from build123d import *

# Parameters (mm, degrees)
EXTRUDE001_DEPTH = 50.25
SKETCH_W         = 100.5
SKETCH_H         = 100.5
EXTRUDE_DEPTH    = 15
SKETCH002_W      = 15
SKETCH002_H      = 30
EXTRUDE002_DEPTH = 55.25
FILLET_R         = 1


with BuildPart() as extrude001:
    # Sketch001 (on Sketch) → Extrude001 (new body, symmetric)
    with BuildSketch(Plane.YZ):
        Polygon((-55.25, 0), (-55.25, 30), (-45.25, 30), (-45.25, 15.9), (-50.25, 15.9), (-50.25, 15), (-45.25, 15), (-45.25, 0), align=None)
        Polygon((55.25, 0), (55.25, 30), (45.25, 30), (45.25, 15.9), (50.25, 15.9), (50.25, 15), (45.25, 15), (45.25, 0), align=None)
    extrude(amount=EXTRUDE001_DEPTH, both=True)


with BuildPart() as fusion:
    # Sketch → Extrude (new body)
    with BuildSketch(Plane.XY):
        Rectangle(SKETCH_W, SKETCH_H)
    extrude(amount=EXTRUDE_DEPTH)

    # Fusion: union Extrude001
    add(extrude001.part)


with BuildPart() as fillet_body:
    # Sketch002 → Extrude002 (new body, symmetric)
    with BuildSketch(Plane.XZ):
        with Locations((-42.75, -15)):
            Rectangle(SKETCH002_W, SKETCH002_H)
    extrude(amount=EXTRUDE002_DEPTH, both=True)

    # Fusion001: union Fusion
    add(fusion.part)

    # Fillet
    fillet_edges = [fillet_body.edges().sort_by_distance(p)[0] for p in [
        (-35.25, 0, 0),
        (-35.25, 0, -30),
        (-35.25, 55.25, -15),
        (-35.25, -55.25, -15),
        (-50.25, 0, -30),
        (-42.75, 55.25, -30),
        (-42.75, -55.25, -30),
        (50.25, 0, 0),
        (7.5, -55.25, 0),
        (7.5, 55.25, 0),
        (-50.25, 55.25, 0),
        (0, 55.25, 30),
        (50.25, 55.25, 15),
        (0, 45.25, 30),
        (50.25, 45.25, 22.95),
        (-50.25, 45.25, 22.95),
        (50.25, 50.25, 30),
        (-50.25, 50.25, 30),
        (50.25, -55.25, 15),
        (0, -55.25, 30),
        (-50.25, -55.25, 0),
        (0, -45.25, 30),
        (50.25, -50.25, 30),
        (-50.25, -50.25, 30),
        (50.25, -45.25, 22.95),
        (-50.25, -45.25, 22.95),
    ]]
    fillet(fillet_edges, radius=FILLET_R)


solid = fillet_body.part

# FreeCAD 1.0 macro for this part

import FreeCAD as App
import Part
import Sketcher
from FreeCAD import Vector


def edges_at(feature, points):
    """Names of the edges that pass closest to the given points."""
    edges = feature.Shape.Edges
    near = lambda p: min(range(len(edges)), key=lambda i: edges[i].distToShape(Part.Vertex(*p))[0])
    return sorted({f"Edge{near(p) + 1}" for p in points})


def add_polygon(sketch, points):
    """Adds a closed chain of lines whose ends are joined by coincident constraints."""
    first, n = sketch.GeometryCount, len(points)
    for a, b in zip(points, points[1:] + points[:1]):
        sketch.addGeometry(Part.LineSegment(App.Vector(*a, 0), App.Vector(*b, 0)), False)
    for i in range(n):
        sketch.addConstraint(Sketcher.Constraint("Coincident", first + i, 2, first + (i + 1) % n, 1))

doc = App.newDocument("Part")
body = doc.addObject("PartDesign::Body", "Body")
body.AllowCompound = True

sketch1 = body.newObject("Sketcher::SketchObject", "Sketch")
sketch1.AttachmentSupport = (doc.getObject("YZ_Plane"), [""])
sketch1.MapMode = "FlatFace"
add_polygon(sketch1, [(-55.25, 30), (-55.25, 0), (-45.25, 0), (-45.25, 15), (-50.25, 15), (-50.25, 15.9), (-45.25, 15.9), (-45.25, 30)])
add_polygon(sketch1, [(55.25, 0), (55.25, 30), (45.25, 30), (45.25, 15.9), (50.25, 15.9), (50.25, 15), (45.25, 15), (45.25, 0)])
sketch1.addConstraint(Sketcher.Constraint("Vertical", 0))
sketch1.addConstraint(Sketcher.Constraint("Horizontal", 1))
sketch1.addConstraint(Sketcher.Constraint("Vertical", 2))
sketch1.addConstraint(Sketcher.Constraint("Horizontal", 3))
sketch1.addConstraint(Sketcher.Constraint("Vertical", 4))
sketch1.addConstraint(Sketcher.Constraint("Horizontal", 5))
sketch1.addConstraint(Sketcher.Constraint("Vertical", 6))
sketch1.addConstraint(Sketcher.Constraint("Horizontal", 7))
sketch1.addConstraint(Sketcher.Constraint("Vertical", 8))
sketch1.addConstraint(Sketcher.Constraint("Horizontal", 9))
sketch1.addConstraint(Sketcher.Constraint("Vertical", 10))
sketch1.addConstraint(Sketcher.Constraint("Horizontal", 11))
sketch1.addConstraint(Sketcher.Constraint("Vertical", 12))
sketch1.addConstraint(Sketcher.Constraint("Horizontal", 13))
sketch1.addConstraint(Sketcher.Constraint("Vertical", 14))
sketch1.addConstraint(Sketcher.Constraint("Horizontal", 15))
sketch1.addConstraint(Sketcher.Constraint("Symmetric", 1, 2, 14, 2, -1, 1))
sketch1.addConstraint(Sketcher.Constraint("Symmetric", 7, 2, 8, 2, -2))
sketch1.addConstraint(Sketcher.Constraint("Symmetric", 5, 2, 10, 2, -2))
sketch1.addConstraint(Sketcher.Constraint("Symmetric", 3, 2, 12, 2, -2))
sketch1.addConstraint(Sketcher.Constraint("PointOnObject", 0, 2, -1))
sketch1.addConstraint(Sketcher.Constraint("Vertical", 2, 2, 5, 2))
sketch1.addConstraint(Sketcher.Constraint("DistanceX", 1, 1, 1, 2, 10.0))
sketch1.addConstraint(Sketcher.Constraint("DistanceX", 3, 2, 3, 1, 5.0))
sketch1.addConstraint(Sketcher.Constraint("DistanceY", 0, 2, 0, 1, 30.0))
sketch1.addConstraint(Sketcher.Constraint("DistanceY", 2, 1, 2, 2, 15.0))
sketch1.addConstraint(Sketcher.Constraint("DistanceY", 4, 1, 4, 2, 0.9))
sketch1.addConstraint(Sketcher.Constraint("DistanceX", 6, 2, 8, 2, 100.5))
pad1 = body.newObject("PartDesign::Pad", "Pad")
pad1.Profile = sketch1
pad1.Length = 100.5
pad1.Midplane = True
body2 = doc.addObject("PartDesign::Body", "Body001")

sketch2 = body2.newObject("Sketcher::SketchObject", "Sketch001")
sketch2.AttachmentSupport = (doc.getObject("XY_Plane001"), [""])
sketch2.MapMode = "FlatFace"
add_polygon(sketch2, [(-50.25, 50.25), (-50.25, -50.25), (50.25, -50.25), (50.25, 50.25)])
sketch2.addConstraint(Sketcher.Constraint("Vertical", 0))
sketch2.addConstraint(Sketcher.Constraint("Horizontal", 1))
sketch2.addConstraint(Sketcher.Constraint("Vertical", 2))
sketch2.addConstraint(Sketcher.Constraint("Horizontal", 3))
sketch2.addConstraint(Sketcher.Constraint("Symmetric", 0, 2, 2, 2, -1, 1))
sketch2.addConstraint(Sketcher.Constraint("Equal", 3, 0))
sketch2.addConstraint(Sketcher.Constraint("DistanceX", 1, 1, 1, 2, 100.5))
pad2 = body2.newObject("PartDesign::Pad", "Pad001")
pad2.Profile = sketch2
pad2.Length = 15
doc.recompute()

boolean = body2.newObject("PartDesign::Boolean", "Boolean")
boolean.Type = "Fuse"
boolean.addObjects([body])
body3 = doc.addObject("PartDesign::Body", "Body002")

sketch3 = body3.newObject("Sketcher::SketchObject", "Sketch002")
sketch3.AttachmentSupport = (doc.getObject("XZ_Plane002"), [""])
sketch3.MapMode = "FlatFace"
add_polygon(sketch3, [(-50.25, 0), (-50.25, -30), (-35.25, -30), (-35.25, 0)])
sketch3.addConstraint(Sketcher.Constraint("Vertical", 0))
sketch3.addConstraint(Sketcher.Constraint("Horizontal", 1))
sketch3.addConstraint(Sketcher.Constraint("Vertical", 2))
sketch3.addConstraint(Sketcher.Constraint("Horizontal", 3))
sketch3.addConstraint(Sketcher.Constraint("PointOnObject", 2, 2, -1))
sketch3.addConstraint(Sketcher.Constraint("DistanceX", 1, 1, 1, 2, 15.0))
sketch3.addConstraint(Sketcher.Constraint("DistanceY", 0, 2, 0, 1, 30.0))
sketch3.addConstraint(Sketcher.Constraint("DistanceX", 0, 2, -1, 1, 50.25))
pad3 = body3.newObject("PartDesign::Pad", "Pad002")
pad3.Profile = sketch3
pad3.Length = 110.5
pad3.Midplane = True
doc.recompute()

boolean2 = body3.newObject("PartDesign::Boolean", "Boolean001")
boolean2.Type = "Fuse"
boolean2.addObjects([body2])
doc.recompute()

fillet = body3.newObject("PartDesign::Fillet", "Fillet")
fillet.Base = (boolean2, edges_at(boolean2, [
    (-35.25, 0, 0),
    (-35.25, 0, -30),
    (-35.25, 55.25, -15),
    (-35.25, -55.25, -15),
    (-50.25, 0, -30),
    (-42.75, 55.25, -30),
    (-42.75, -55.25, -30),
    (50.25, 0, 0),
    (7.5, -55.25, 0),
    (7.5, 55.25, 0),
    (-50.25, 55.25, 0),
    (0, 55.25, 30),
    (50.25, 55.25, 15),
    (0, 45.25, 30),
    (50.25, 45.25, 22.95),
    (-50.25, 45.25, 22.95),
    (50.25, 50.25, 30),
    (-50.25, 50.25, 30),
    (50.25, -55.25, 15),
    (0, -55.25, 30),
    (-50.25, -55.25, 0),
    (0, -45.25, 30),
    (50.25, -50.25, 30),
    (-50.25, -50.25, 30),
    (50.25, -45.25, 22.95),
    (-50.25, -45.25, 22.95),
]))
fillet.Radius = 1

doc.recompute()
